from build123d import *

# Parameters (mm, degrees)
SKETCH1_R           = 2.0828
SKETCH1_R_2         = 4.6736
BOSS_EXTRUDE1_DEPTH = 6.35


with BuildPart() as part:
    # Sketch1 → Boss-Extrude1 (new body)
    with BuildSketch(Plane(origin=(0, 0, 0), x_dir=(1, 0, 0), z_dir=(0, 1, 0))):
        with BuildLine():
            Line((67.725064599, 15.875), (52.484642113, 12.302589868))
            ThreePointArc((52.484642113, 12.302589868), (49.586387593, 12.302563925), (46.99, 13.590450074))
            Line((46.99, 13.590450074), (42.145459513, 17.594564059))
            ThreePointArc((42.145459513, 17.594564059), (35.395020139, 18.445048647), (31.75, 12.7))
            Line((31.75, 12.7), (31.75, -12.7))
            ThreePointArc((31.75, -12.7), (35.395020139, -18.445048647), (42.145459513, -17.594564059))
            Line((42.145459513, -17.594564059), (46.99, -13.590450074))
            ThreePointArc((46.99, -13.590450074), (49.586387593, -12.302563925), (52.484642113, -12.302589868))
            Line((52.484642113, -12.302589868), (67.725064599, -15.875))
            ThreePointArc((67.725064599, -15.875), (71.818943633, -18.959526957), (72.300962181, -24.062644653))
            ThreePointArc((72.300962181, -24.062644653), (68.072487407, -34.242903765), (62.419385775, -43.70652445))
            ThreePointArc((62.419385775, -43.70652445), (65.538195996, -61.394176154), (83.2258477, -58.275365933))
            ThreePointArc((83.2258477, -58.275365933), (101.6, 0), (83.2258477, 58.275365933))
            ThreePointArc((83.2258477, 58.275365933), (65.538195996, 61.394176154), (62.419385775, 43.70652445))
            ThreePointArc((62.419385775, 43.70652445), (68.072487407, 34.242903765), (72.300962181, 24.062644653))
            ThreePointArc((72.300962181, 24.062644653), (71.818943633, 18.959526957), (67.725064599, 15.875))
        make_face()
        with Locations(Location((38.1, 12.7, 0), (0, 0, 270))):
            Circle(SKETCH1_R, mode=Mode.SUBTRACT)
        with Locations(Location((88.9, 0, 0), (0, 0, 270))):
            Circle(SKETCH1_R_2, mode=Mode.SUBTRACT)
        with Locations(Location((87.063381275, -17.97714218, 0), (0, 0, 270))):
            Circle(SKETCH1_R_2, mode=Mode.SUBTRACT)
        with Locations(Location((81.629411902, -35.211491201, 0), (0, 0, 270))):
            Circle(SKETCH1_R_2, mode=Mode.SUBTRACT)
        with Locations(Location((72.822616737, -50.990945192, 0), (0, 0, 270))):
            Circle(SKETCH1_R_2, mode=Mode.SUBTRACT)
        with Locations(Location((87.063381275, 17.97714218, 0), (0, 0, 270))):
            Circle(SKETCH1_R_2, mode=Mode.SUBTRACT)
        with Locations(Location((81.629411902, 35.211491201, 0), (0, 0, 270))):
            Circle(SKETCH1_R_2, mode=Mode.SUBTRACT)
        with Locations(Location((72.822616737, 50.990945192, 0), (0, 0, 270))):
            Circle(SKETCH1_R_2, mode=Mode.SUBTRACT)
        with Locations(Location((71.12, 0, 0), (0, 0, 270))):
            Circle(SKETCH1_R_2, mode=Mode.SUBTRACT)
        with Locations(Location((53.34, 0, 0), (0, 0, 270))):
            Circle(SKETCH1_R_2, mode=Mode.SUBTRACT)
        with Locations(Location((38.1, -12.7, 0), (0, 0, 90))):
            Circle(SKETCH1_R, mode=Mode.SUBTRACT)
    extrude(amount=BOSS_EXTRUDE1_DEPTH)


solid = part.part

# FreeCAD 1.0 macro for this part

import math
import FreeCAD as App
import Part
import Sketcher
from FreeCAD import Vector
Q = App.Units.Quantity

doc = App.newDocument("Part")
body = doc.addObject("PartDesign::Body", "Body")

sketch1 = doc.addObject("Sketcher::SketchObject", "Sketch")
body.addObject(sketch1)
sketch1.AttachmentSupport = (doc.XZ_Plane, [""])
sketch1.MapMode = "FlatFace"
sketch1.addGeometry(Part.LineSegment(Vector(67.725065, -15.875, 0), Vector(52.484642, -12.30259, 0)), False)
sketch1.addGeometry(Part.ArcOfCircle(Part.Circle(Vector(51.03546, -18.485014, 0), Vector(0, 0, 1), 6.35), math.radians(76.807835), math.radians(129.574443)), False)
sketch1.addGeometry(Part.LineSegment(Vector(46.99, -13.59045, 0), Vector(42.14546, -17.594564, 0)), False)
sketch1.addGeometry(Part.ArcOfCircle(Part.Circle(Vector(38.1, -12.7, 0), Vector(0, 0, 1), 6.35), math.radians(180), math.radians(309.574443)), False)
sketch1.addGeometry(Part.LineSegment(Vector(31.75, -12.7, 0), Vector(31.75, 12.7, 0)), False)
sketch1.addGeometry(Part.ArcOfCircle(Part.Circle(Vector(38.1, 12.7, 0), Vector(0, 0, 1), 6.35), math.radians(50.425557), math.radians(180)), False)
sketch1.addGeometry(Part.LineSegment(Vector(42.14546, 17.594564, 0), Vector(46.99, 13.59045, 0)), False)
sketch1.addGeometry(Part.ArcOfCircle(Part.Circle(Vector(51.03546, 18.485014, 0), Vector(0, 0, 1), 6.35), math.radians(-129.574443), math.radians(-76.807835)), False)
sketch1.addGeometry(Part.LineSegment(Vector(52.484642, 12.30259, 0), Vector(67.725065, 15.875, 0)), False)
sketch1.addGeometry(Part.ArcOfCircle(Part.Circle(Vector(66.275882, 22.057424, 0), Vector(0, 0, 1), 6.35), math.radians(-76.807835), math.radians(18.408073)), False)
sketch1.addGeometry(Part.ArcOfCircle(Part.Circle(Vector(0, 0, 0), Vector(0, 0, 1), 76.2), math.radians(18.408073), math.radians(35)), False)
sketch1.addGeometry(Part.ArcOfCircle(Part.Circle(Vector(72.822617, 50.990945, 0), Vector(0, 0, 1), 12.7), math.radians(35), math.radians(215)), False)
sketch1.addGeometry(Part.ArcOfCircle(Part.Circle(Vector(0, 0, 0), Vector(0, 0, 1), 101.6), math.radians(-35), math.radians(35)), False)
sketch1.addGeometry(Part.ArcOfCircle(Part.Circle(Vector(72.822617, -50.990945, 0), Vector(0, 0, 1), 12.7), math.radians(145), math.radians(325)), False)
sketch1.addGeometry(Part.ArcOfCircle(Part.Circle(Vector(0, 0, 0), Vector(0, 0, 1), 76.2), math.radians(-35), math.radians(-18.408073)), False)
sketch1.addGeometry(Part.ArcOfCircle(Part.Circle(Vector(66.275882, -22.057424, 0), Vector(0, 0, 1), 6.35), math.radians(-18.408073), math.radians(76.807835)), False)
sketch1.addGeometry(Part.Circle(Vector(38.1, 12.7, 0), Vector(0, 0, 1), 2.0828), False)
sketch1.addGeometry(Part.Circle(Vector(72.822617, 50.990945, 0), Vector(0, 0, 1), 4.6736), False)
sketch1.addGeometry(Part.Circle(Vector(81.629412, 35.211491, 0), Vector(0, 0, 1), 4.6736), False)
sketch1.addGeometry(Part.Circle(Vector(87.063381, 17.977142, 0), Vector(0, 0, 1), 4.6736), False)
sketch1.addGeometry(Part.Circle(Vector(38.1, -12.7, 0), Vector(0, 0, 1), 2.0828), False)
sketch1.addGeometry(Part.Circle(Vector(53.34, 0, 0), Vector(0, 0, 1), 4.6736), False)
sketch1.addGeometry(Part.Circle(Vector(71.12, 0, 0), Vector(0, 0, 1), 4.6736), False)
sketch1.addGeometry(Part.Circle(Vector(88.9, 0, 0), Vector(0, 0, 1), 4.6736), False)
sketch1.addGeometry(Part.Circle(Vector(87.063381, -17.977142, 0), Vector(0, 0, 1), 4.6736), False)
sketch1.addGeometry(Part.Circle(Vector(72.822617, -50.990945, 0), Vector(0, 0, 1), 4.6736), False)
sketch1.addGeometry(Part.Circle(Vector(81.629412, -35.211491, 0), Vector(0, 0, 1), 4.6736), False)
sketch1.addConstraint(Sketcher.Constraint("Tangent", 0, 2, 1, 1))
sketch1.addConstraint(Sketcher.Constraint("Tangent", 1, 2, 2, 1))
sketch1.addConstraint(Sketcher.Constraint("Tangent", 2, 2, 3, 2))
sketch1.addConstraint(Sketcher.Constraint("Tangent", 3, 1, 4, 1))
sketch1.addConstraint(Sketcher.Constraint("Tangent", 4, 2, 5, 2))
sketch1.addConstraint(Sketcher.Constraint("Tangent", 5, 1, 6, 1))
sketch1.addConstraint(Sketcher.Constraint("Tangent", 6, 2, 7, 1))
sketch1.addConstraint(Sketcher.Constraint("Tangent", 7, 2, 8, 1))
sketch1.addConstraint(Sketcher.Constraint("Tangent", 8, 2, 9, 1))
sketch1.addConstraint(Sketcher.Constraint("Tangent", 9, 2, 10, 1))
sketch1.addConstraint(Sketcher.Constraint("Tangent", 10, 2, 11, 2))
sketch1.addConstraint(Sketcher.Constraint("Tangent", 11, 1, 12, 2))
sketch1.addConstraint(Sketcher.Constraint("Tangent", 12, 1, 13, 2))
sketch1.addConstraint(Sketcher.Constraint("Tangent", 13, 1, 14, 1))
sketch1.addConstraint(Sketcher.Constraint("Tangent", 14, 2, 15, 1))
sketch1.addConstraint(Sketcher.Constraint("Tangent", 15, 2, 0, 1))
sketch1.addConstraint(Sketcher.Constraint("Vertical", 4))
sketch1.addConstraint(Sketcher.Constraint("Coincident", 10, 3, -1, 1))
sketch1.addConstraint(Sketcher.Constraint("Coincident", 12, 3, -1, 1))
sketch1.addConstraint(Sketcher.Constraint("Coincident", 14, 3, -1, 1))
sketch1.addConstraint(Sketcher.Constraint("Coincident", 16, 3, 5, 3))
sketch1.addConstraint(Sketcher.Constraint("Coincident", 17, 3, 11, 3))
sketch1.addConstraint(Sketcher.Constraint("Coincident", 20, 3, 3, 3))
sketch1.addConstraint(Sketcher.Constraint("Coincident", 25, 3, 13, 3))
sketch1.addConstraint(Sketcher.Constraint("Equal", 1, 3))
sketch1.addConstraint(Sketcher.Constraint("Equal", 3, 5))
sketch1.addConstraint(Sketcher.Constraint("Equal", 5, 7))
sketch1.addConstraint(Sketcher.Constraint("Equal", 7, 9))
sketch1.addConstraint(Sketcher.Constraint("Equal", 11, 13))
sketch1.addConstraint(Sketcher.Constraint("Equal", 9, 15))
sketch1.addConstraint(Sketcher.Constraint("Equal", 17, 18))
sketch1.addConstraint(Sketcher.Constraint("Equal", 18, 19))
sketch1.addConstraint(Sketcher.Constraint("Equal", 16, 20))
sketch1.addConstraint(Sketcher.Constraint("Equal", 19, 21))
sketch1.addConstraint(Sketcher.Constraint("Equal", 21, 22))
sketch1.addConstraint(Sketcher.Constraint("Equal", 22, 23))
sketch1.addConstraint(Sketcher.Constraint("Equal", 23, 24))
sketch1.addConstraint(Sketcher.Constraint("Equal", 24, 25))
sketch1.addConstraint(Sketcher.Constraint("Equal", 25, 26))
sketch1.addConstraint(Sketcher.Constraint("Symmetric", 1, 3, 7, 3, -1))
sketch1.addConstraint(Sketcher.Constraint("Symmetric", 19, 3, 24, 3, -1))
sketch1.addConstraint(Sketcher.Constraint("Symmetric", 18, 3, 26, 3, -1))
sketch1.addConstraint(Sketcher.Constraint("PointOnObject", 21, 3, -1))
sketch1.addConstraint(Sketcher.Constraint("PointOnObject", 22, 3, -1))
sketch1.addConstraint(Sketcher.Constraint("PointOnObject", 23, 3, -1))
sketch1.addConstraint(Sketcher.Constraint("Vertical", 11, 3, 13, 3))
sketch1.addConstraint(Sketcher.Constraint("Vertical", 9, 3, 15, 3))
sketch1.addConstraint(Sketcher.Constraint("Vertical", 2, 2, 5, 1))
sketch1.addConstraint(Sketcher.Constraint("Radius", 10, Q("3 in")))
sketch1.addConstraint(Sketcher.Constraint("Radius", 12, Q("4 in")))
sketch1.addConstraint(Sketcher.Constraint("DistanceY", 4, 1, 4, 2, Q("1 in")))
sketch1.addConstraint(Sketcher.Constraint("Radius", 1, Q("0.25 in")))
sketch1.addConstraint(Sketcher.Constraint("Diameter", 16, Q("0.164 in")))
sketch1.addConstraint(Sketcher.Constraint("Diameter", 17, Q("0.368 in")))
sketch1.addConstraint(Sketcher.Constraint("DistanceX", -1, 1, 3, 3, Q("1.5 in")))
sketch1.addConstraint(Sketcher.Constraint("DistanceX", -1, 1, 21, 3, Q("2.1 in")))
sketch1.addConstraint(Sketcher.Constraint("DistanceX", -1, 1, 22, 3, Q("2.8 in")))
sketch1.addConstraint(Sketcher.Constraint("DistanceX", -1, 1, 23, 3, Q("3.5 in")))
sketch1.addConstraint(Sketcher.Constraint("DistanceX", 3, 1, 1, 2, Q("0.6 in")))
sketch1.addConstraint(Sketcher.Constraint("DistanceY", -1, 1, 8, 2, Q("0.625 in")))
sketch1.addConstraint(Sketcher.Constraint("Distance", 2, Q("6.285102 mm")))
sketch1.addConstraint(Sketcher.Constraint("DistanceX", 9, 3, 19, 3, Q("20.787499 mm")))
sketch1.addConstraint(Sketcher.Constraint("DistanceY", 9, 3, 10, 2, Q("21.6491 mm")))
sketch1.addConstraint(Sketcher.Constraint("DistanceX", -1, 1, 18, 3, Q("81.629412 mm")))
sketch1.addConstraint(Sketcher.Constraint("DistanceY", -1, 1, 18, 3, Q("35.211491 mm")))
sketch1.addConstraint(Sketcher.Constraint("DistanceY", 19, 3, 18, 3, Q("17.234349 mm")))
pad1 = doc.addObject("PartDesign::Pad", "Pad")
body.addObject(pad1)
pad1.Profile = sketch1
pad1.Length = Q("0.25 in")
pad1.Reversed = True

doc.recompute()
